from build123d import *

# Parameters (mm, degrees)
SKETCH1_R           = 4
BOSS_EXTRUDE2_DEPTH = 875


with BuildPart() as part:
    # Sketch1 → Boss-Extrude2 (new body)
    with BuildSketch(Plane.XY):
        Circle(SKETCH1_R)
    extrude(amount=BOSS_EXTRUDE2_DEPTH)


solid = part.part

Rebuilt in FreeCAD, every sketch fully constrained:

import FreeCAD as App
import Part
import Sketcher
from FreeCAD import Vector
Q = App.Units.Quantity

doc = App.newDocument("Part")
body = doc.addObject("PartDesign::Body", "Body")

sketch1 = body.newObject("Sketcher::SketchObject", "Sketch")
sketch1.AttachmentSupport = (doc.getObject("XY_Plane"), [""])
sketch1.MapMode = "FlatFace"
sketch1.addGeometry(Part.Circle(Vector(0, 0, 0), Vector(0, 0, 1), 4), False)
sketch1.addConstraint([
    Sketcher.Constraint("Coincident", 0, 3, -1, 1),
    Sketcher.Constraint("Diameter", 0, Q("8 mm")),
])
pad1 = body.newObject("PartDesign::Pad", "Pad")
pad1.Profile = sketch1
pad1.Length = 875

doc.recompute()
